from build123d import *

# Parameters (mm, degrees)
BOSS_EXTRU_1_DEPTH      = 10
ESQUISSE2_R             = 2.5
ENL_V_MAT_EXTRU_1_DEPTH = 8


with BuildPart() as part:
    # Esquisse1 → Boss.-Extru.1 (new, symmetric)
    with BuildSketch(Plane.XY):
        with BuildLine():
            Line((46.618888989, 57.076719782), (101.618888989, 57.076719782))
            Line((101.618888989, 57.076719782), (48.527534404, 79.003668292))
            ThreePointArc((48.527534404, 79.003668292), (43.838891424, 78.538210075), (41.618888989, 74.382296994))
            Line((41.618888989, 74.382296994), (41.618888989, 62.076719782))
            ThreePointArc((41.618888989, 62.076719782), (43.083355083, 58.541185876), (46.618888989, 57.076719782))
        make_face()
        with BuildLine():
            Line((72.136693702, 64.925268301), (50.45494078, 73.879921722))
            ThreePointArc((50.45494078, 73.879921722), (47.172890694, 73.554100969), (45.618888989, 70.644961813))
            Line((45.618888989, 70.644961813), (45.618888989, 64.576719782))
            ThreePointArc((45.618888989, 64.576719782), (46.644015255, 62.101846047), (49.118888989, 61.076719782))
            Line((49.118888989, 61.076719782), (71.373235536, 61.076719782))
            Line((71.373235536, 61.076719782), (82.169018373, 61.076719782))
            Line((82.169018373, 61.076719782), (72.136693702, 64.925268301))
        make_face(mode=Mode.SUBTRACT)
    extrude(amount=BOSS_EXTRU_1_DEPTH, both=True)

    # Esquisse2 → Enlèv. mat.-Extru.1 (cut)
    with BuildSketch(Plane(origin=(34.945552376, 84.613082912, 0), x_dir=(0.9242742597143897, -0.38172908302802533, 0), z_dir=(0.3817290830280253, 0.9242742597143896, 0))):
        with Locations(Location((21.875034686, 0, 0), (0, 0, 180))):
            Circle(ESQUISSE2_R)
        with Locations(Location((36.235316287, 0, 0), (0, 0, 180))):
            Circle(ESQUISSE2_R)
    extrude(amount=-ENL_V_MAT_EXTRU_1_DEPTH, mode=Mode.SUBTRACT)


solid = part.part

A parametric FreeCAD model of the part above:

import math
import FreeCAD as App
import Part
import Sketcher

V = App.Vector

doc = App.newDocument("Part")
body = doc.addObject("PartDesign::Body", "Body")

# Sketch on XY plane
sketch1 = doc.addObject("Sketcher::SketchObject", "Sketch")
body.addObject(sketch1)
sketch1.AttachmentSupport = (doc.XY_Plane, [""])
sketch1.MapMode = "FlatFace"
sketch1.addGeometry([
    Part.LineSegment(V(46.6, 57.1, 0), V(101.6, 57.1, 0)),  # 0
    Part.LineSegment(V(101.6, 57.1, 0), V(48.5, 79, 0)),  # 1
    Part.ArcOfCircle(Part.Circle(V(46.6, 74.4, 0), V(0, 0, 1), 5), math.radians(68), math.radians(180)),  # 2
    Part.LineSegment(V(41.6, 74.4, 0), V(41.6, 62.1, 0)),  # 3
    Part.ArcOfCircle(Part.Circle(V(46.6, 62.1, 0), V(0, 0, 1), 5), math.radians(180), math.radians(270)),  # 4
    Part.LineSegment(V(50.5, 73.9, 0), V(72.1, 64.9, 0)),  # 5
    Part.LineSegment(V(72.1, 64.9, 0), V(82.2, 61.1, 0)),  # 6
    Part.LineSegment(V(82.2, 61.1, 0), V(49.1, 61.1, 0)),  # 7
    Part.ArcOfCircle(Part.Circle(V(49.1, 64.6, 0), V(0, 0, 1), 3.5), math.radians(180), math.radians(270)),  # 8
    Part.LineSegment(V(45.6, 64.6, 0), V(45.6, 70.6, 0)),  # 9
    Part.ArcOfCircle(Part.Circle(V(49.1, 70.6, 0), V(0, 0, 1), 3.5), math.radians(68), math.radians(180)),  # 10
], False)
sketch1.addConstraint([
    Sketcher.Constraint("Coincident", 0, 2, 1, 1),
    Sketcher.Constraint("Tangent", 1, 2, 2, 1),
    Sketcher.Constraint("Tangent", 2, 2, 3, 1),
    Sketcher.Constraint("Tangent", 3, 2, 4, 1),
    Sketcher.Constraint("Tangent", 4, 2, 0, 1),
    Sketcher.Constraint("Coincident", 5, 2, 6, 1),
    Sketcher.Constraint("Coincident", 6, 2, 7, 1),
    Sketcher.Constraint("Tangent", 7, 2, 8, 2),
    Sketcher.Constraint("Tangent", 8, 1, 9, 1),
    Sketcher.Constraint("Tangent", 9, 2, 10, 2),
    Sketcher.Constraint("Tangent", 10, 1, 5, 1),
    Sketcher.Constraint("Horizontal", 0),
    Sketcher.Constraint("Vertical", 3),
    Sketcher.Constraint("Horizontal", 7),
    Sketcher.Constraint("Vertical", 9),
    Sketcher.Constraint("Equal", 2, 4),
    Sketcher.Constraint("Equal", 8, 10),
    Sketcher.Constraint("Parallel", 1, 5),
    Sketcher.Constraint("Radius", 2, 5.0),
    Sketcher.Constraint("Radius", 8, 3.5),
    Sketcher.Constraint("DistanceX", 0, 1, 0, 2, 55.0),
    Sketcher.Constraint("DistanceY", 0, 2, 6, 2, 4.0),
    Sketcher.Constraint("DistanceX", 8, 1, 4, 3, 1.0),
    Sketcher.Constraint("DistanceX", 7, 2, 7, 1, 33.050129),
    Sketcher.Constraint("Distance", 6, 10.745179),
    Sketcher.Constraint("DistanceY", 3, 2, 3, 1, 12.305577),
    Sketcher.Constraint("DistanceY", 9, 1, 9, 2, 6.068242),
    Sketcher.Constraint("DistanceX", -1, 1, 2, 3, 46.618889),
    Sketcher.Constraint("DistanceY", -1, 1, 4, 3, 62.07672),
])
pad1 = doc.addObject("PartDesign::Pad", "Pad")
body.addObject(pad1)
pad1.Profile = sketch1
pad1.Length = 20
pad1.Midplane = True

# Sketch on an angled plane
sketch2 = doc.addObject("Sketcher::SketchObject", "Sketch001")
body.addObject(sketch2)
sketch2.Placement = App.Placement(V(34.945552, 84.613083, 0), App.Rotation(V(0.92427426, -0.381729083, 0), V(0, 0, -1.000000001), V(0.381729083, 0.92427426, 0), "ZXY"))
sketch2.addGeometry([
    Part.Circle(V(21.9, 0, 0), V(0, 0, 1), 2.5),
    Part.Circle(V(36.2, 0, 0), V(0, 0, 1), 2.5),
], False)
sketch2.addConstraint([
    Sketcher.Constraint("Equal", 0, 1),
    Sketcher.Constraint("PointOnObject", 0, 3, -1),
    Sketcher.Constraint("PointOnObject", 1, 3, -1),
    Sketcher.Constraint("Diameter", 0, 5.0),
    Sketcher.Constraint("DistanceX", 0, 3, 1, 3, 14.360282),
    Sketcher.Constraint("DistanceX", -1, 1, 0, 3, 21.875035),
])
pocket1 = doc.addObject("PartDesign::Pocket", "Pocket")
body.addObject(pocket1)
pocket1.Profile = sketch2
pocket1.Length = 8

doc.recompute()
